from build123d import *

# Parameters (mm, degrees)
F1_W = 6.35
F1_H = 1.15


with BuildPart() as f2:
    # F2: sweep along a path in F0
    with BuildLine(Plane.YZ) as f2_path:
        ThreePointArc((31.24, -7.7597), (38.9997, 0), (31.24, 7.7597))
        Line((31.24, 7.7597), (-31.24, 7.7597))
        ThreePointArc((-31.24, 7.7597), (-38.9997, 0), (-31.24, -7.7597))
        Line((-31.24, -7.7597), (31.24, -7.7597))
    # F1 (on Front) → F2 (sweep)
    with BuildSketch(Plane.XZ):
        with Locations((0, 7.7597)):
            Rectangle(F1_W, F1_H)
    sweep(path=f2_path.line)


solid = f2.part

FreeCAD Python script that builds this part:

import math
import FreeCAD as App
import Part
import Sketcher
from FreeCAD import Vector
Q = App.Units.Quantity

doc = App.newDocument("Part")
body = doc.addObject("PartDesign::Body", "Body")

# Sketch on XZ plane
sketch1 = body.newObject("Sketcher::SketchObject", "Sketch")
sketch1.AttachmentSupport = (doc.getObject("XZ_Plane"), [""])
sketch1.MapMode = "FlatFace"
sketch1.addGeometry([
    Part.LineSegment(Vector(-3.2, 8.3, 0), Vector(-3.2, 7.2, 0)),
    Part.LineSegment(Vector(-3.2, 7.2, 0), Vector(3.2, 7.2, 0)),
    Part.LineSegment(Vector(3.2, 7.2, 0), Vector(3.2, 8.3, 0)),
    Part.LineSegment(Vector(3.2, 8.3, 0), Vector(-3.2, 8.3, 0)),
], False)
sketch1.addConstraint([
    Sketcher.Constraint("Coincident", 0, 2, 1, 1),
    Sketcher.Constraint("Coincident", 1, 2, 2, 1),
    Sketcher.Constraint("Coincident", 2, 2, 3, 1),
    Sketcher.Constraint("Coincident", 3, 2, 0, 1),
    Sketcher.Constraint("Vertical", 0),
    Sketcher.Constraint("Horizontal", 1),
    Sketcher.Constraint("Vertical", 2),
    Sketcher.Constraint("Horizontal", 3),
    Sketcher.Constraint("DistanceX", 1, 1, 1, 2, Q("0.25 in")),
    Sketcher.Constraint("DistanceX", 0, 2, -1, 1, Q("0.125 in")),
    Sketcher.Constraint("DistanceY", 0, 2, 0, 1, Q("1.15 mm")),
    Sketcher.Constraint("DistanceY", -1, 1, 0, 2, Q("7.1847 mm")),
])

# Sketch on YZ plane
sketch2 = body.newObject("Sketcher::SketchObject", "Sketch001")
sketch2.AttachmentSupport = (doc.getObject("YZ_Plane"), [""])
sketch2.MapMode = "FlatFace"
sketch2.addGeometry([
    Part.ArcOfCircle(Part.Circle(Vector(31, 0, 0), Vector(0, 0, 1), 8), math.radians(-90), math.radians(90)),
    Part.LineSegment(Vector(31, 8, 0), Vector(-31, 8, 0)),
    Part.ArcOfCircle(Part.Circle(Vector(-31, 0, 0), Vector(0, 0, 1), 8), math.radians(90), math.radians(270)),
    Part.LineSegment(Vector(-31, -8, 0), Vector(31, -8, 0)),
], False)
sketch2.addConstraint([
    Sketcher.Constraint("Tangent", 0, 2, 1, 1),
    Sketcher.Constraint("Tangent", 1, 2, 2, 1),
    Sketcher.Constraint("Tangent", 2, 2, 3, 1),
    Sketcher.Constraint("Tangent", 3, 2, 0, 1),
    Sketcher.Constraint("Horizontal", 1),
    Sketcher.Constraint("Horizontal", 3),
    Sketcher.Constraint("Symmetric", 0, 3, 2, 3, -1, 1),
    Sketcher.Constraint("Radius", 0, Q("0.3055 in")),
    Sketcher.Constraint("DistanceX", 1, 2, 1, 1, Q("62.48 mm")),
])
doc.recompute()

additivepipe = body.newObject("PartDesign::AdditivePipe", "AdditivePipe")
additivepipe.Profile = sketch1
additivepipe.Spine = (sketch2, ["Edge1", "Edge2", "Edge3", "Edge4"])

doc.recompute()
